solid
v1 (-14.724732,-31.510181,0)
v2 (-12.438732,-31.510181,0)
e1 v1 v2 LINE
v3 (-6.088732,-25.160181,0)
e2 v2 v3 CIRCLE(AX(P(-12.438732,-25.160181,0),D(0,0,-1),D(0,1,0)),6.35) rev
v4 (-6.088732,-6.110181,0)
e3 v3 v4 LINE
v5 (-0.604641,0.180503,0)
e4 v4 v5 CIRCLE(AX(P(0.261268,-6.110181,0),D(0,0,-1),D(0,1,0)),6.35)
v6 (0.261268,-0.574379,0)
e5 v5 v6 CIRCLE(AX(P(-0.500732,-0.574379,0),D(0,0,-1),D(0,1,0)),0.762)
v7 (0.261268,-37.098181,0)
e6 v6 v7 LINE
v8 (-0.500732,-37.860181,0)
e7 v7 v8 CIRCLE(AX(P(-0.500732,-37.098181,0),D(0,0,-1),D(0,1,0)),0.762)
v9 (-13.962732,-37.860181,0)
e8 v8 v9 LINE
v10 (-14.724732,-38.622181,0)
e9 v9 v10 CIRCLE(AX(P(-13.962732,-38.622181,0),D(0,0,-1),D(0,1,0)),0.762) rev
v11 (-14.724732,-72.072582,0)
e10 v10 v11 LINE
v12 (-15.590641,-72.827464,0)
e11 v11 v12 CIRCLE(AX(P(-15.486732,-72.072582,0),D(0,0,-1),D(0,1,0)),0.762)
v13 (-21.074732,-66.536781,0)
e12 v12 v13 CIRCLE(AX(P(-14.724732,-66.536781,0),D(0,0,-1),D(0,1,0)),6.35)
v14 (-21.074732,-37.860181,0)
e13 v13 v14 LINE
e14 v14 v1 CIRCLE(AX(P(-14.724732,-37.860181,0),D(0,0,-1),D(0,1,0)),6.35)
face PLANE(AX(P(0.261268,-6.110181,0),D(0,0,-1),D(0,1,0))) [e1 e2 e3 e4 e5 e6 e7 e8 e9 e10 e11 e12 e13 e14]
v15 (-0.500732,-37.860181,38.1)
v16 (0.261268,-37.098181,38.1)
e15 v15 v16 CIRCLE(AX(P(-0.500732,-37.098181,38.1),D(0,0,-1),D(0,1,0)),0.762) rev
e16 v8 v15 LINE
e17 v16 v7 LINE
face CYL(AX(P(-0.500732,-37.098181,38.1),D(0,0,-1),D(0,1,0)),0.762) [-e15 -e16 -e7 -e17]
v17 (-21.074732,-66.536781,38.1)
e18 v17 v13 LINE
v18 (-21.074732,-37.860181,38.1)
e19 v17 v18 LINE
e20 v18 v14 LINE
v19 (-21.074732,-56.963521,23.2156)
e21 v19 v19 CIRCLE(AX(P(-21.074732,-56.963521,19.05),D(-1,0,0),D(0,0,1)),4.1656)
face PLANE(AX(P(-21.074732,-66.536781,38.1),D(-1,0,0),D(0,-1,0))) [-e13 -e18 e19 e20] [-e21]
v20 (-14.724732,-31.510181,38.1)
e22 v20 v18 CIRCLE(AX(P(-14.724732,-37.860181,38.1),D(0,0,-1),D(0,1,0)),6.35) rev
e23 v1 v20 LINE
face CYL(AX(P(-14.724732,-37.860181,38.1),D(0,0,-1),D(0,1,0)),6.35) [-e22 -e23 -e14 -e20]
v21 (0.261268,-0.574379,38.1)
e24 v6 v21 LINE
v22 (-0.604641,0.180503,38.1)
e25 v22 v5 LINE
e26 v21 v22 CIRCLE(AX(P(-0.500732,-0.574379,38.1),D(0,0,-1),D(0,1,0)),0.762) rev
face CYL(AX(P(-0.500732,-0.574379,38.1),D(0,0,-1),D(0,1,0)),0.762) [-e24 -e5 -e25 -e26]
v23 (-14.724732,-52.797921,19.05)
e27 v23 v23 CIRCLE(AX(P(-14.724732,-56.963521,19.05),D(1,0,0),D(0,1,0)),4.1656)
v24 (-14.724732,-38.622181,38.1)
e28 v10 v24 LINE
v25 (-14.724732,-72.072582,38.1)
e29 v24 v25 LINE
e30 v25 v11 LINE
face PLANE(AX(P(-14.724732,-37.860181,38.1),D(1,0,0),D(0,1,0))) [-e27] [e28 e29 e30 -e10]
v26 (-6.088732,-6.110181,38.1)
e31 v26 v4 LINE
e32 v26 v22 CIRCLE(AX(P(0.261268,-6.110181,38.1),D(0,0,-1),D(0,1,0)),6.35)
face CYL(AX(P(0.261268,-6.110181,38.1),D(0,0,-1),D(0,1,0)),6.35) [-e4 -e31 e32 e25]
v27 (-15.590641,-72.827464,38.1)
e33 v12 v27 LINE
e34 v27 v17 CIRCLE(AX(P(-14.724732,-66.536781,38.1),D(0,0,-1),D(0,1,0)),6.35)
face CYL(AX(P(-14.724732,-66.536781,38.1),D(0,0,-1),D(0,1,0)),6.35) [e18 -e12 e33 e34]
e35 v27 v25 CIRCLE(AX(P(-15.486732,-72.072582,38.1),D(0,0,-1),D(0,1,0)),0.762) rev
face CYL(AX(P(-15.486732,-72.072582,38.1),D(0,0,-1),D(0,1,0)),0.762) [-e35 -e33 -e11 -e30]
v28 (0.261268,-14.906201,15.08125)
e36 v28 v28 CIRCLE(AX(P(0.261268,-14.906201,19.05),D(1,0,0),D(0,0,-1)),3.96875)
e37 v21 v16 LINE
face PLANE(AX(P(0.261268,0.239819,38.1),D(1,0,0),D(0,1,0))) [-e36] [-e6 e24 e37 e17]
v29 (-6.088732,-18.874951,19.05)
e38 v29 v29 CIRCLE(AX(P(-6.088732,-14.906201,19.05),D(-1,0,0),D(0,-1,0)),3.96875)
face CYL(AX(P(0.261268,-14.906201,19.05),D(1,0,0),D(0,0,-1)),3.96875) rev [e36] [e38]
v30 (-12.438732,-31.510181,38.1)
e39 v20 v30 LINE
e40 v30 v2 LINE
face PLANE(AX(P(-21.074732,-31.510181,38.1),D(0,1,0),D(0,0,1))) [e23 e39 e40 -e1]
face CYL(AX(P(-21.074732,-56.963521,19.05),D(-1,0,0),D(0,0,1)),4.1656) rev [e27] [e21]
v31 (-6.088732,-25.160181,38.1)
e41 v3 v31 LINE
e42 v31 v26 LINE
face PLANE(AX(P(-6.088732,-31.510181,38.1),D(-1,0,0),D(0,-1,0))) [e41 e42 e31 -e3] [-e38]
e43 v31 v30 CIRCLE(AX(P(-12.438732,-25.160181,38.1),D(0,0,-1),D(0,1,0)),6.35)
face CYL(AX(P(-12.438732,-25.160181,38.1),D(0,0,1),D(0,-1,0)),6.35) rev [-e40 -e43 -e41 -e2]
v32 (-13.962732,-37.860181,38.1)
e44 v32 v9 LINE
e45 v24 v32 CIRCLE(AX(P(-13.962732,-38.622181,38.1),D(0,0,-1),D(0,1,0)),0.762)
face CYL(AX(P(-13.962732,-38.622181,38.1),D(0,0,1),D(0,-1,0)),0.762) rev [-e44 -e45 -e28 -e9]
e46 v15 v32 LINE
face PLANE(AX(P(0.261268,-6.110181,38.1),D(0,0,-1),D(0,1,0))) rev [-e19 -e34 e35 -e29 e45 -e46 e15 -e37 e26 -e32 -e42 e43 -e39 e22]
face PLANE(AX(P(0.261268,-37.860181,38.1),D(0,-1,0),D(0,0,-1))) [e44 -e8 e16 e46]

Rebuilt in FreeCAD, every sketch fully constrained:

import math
import FreeCAD as App
import Part
import Sketcher
Q = App.Units.Quantity


def edges_at(feature, points):
    """Names of the edges that pass closest to the given points."""
    edges = feature.Shape.Edges
    near = lambda p: min(range(len(edges)), key=lambda i: edges[i].distToShape(Part.Vertex(*p))[0])
    return sorted({f"Edge{near(p) + 1}" for p in points})

doc = App.newDocument("Part")
body = doc.addObject("PartDesign::Body", "Body")

# Sketch on XY plane
sketch1 = body.newObject("Sketcher::SketchObject", "Sketch")
sketch1.AttachmentSupport = (doc.getObject("XY_Plane"), [""])
sketch1.MapMode = "FlatFace"
sketch1.addGeometry(Part.LineSegment(App.Vector(-21, -32, 0), App.Vector(-6, -32, 0)), False)
sketch1.addGeometry(Part.LineSegment(App.Vector(-6, -32, 0), App.Vector(-6, -6, 0)), False)
sketch1.addGeometry(Part.ArcOfCircle(Part.Circle(App.Vector(0, -6, 0), App.Vector(0, 0, 1), 6), math.radians(90), math.radians(180)), False)
sketch1.addGeometry(Part.LineSegment(App.Vector(0, 0, 0), App.Vector(0, -38, 0)), False)
sketch1.addGeometry(Part.LineSegment(App.Vector(0, -38, 0), App.Vector(-15, -38, 0)), False)
sketch1.addGeometry(Part.LineSegment(App.Vector(-15, -38, 0), App.Vector(-15, -73, 0)), False)
sketch1.addGeometry(Part.ArcOfCircle(Part.Circle(App.Vector(-15, -67, 0), App.Vector(0, 0, 1), 6), math.radians(180), math.radians(270)), False)
sketch1.addGeometry(Part.LineSegment(App.Vector(-21, -67, 0), App.Vector(-21, -32, 0)), False)
sketch1.addConstraint(Sketcher.Constraint("Coincident", 0, 2, 1, 1))
sketch1.addConstraint(Sketcher.Constraint("Tangent", 1, 2, 2, 2))
sketch1.addConstraint(Sketcher.Constraint("Coincident", 2, 1, 3, 1))
sketch1.addConstraint(Sketcher.Constraint("Coincident", 3, 2, 4, 1))
sketch1.addConstraint(Sketcher.Constraint("Coincident", 4, 2, 5, 1))
sketch1.addConstraint(Sketcher.Constraint("Coincident", 5, 2, 6, 2))
sketch1.addConstraint(Sketcher.Constraint("Tangent", 6, 1, 7, 1))
sketch1.addConstraint(Sketcher.Constraint("Coincident", 7, 2, 0, 1))
sketch1.addConstraint(Sketcher.Constraint("Horizontal", 0))
sketch1.addConstraint(Sketcher.Constraint("Vertical", 1))
sketch1.addConstraint(Sketcher.Constraint("Vertical", 3))
sketch1.addConstraint(Sketcher.Constraint("Horizontal", 4))
sketch1.addConstraint(Sketcher.Constraint("Vertical", 5))
sketch1.addConstraint(Sketcher.Constraint("Vertical", 7))
sketch1.addConstraint(Sketcher.Constraint("Equal", 2, 6))
sketch1.addConstraint(Sketcher.Constraint("Vertical", 6, 3, 4, 2))
sketch1.addConstraint(Sketcher.Constraint("Equal", 0, 4))
sketch1.addConstraint(Sketcher.Constraint("Equal", 5, 7))
sketch1.addConstraint(Sketcher.Constraint("DistanceY", 1, 1, 1, 2, Q("1 in")))
sketch1.addConstraint(Sketcher.Constraint("Radius", 2, Q("0.25 in")))
sketch1.addConstraint(Sketcher.Constraint("DistanceX", 0, 1, 0, 2, Q("0.59 in")))
sketch1.addConstraint(Sketcher.Constraint("DistanceY", 5, 2, 5, 1, Q("1.379 in")))
sketch1.addConstraint(Sketcher.Constraint("DistanceY", 2, 3, -1, 1, Q("6.110181 mm")))
sketch1.addConstraint(Sketcher.Constraint("DistanceX", -1, 1, 2, 3, Q("0.261268 mm")))
pad1 = body.newObject("PartDesign::Pad", "Pad")
pad1.Profile = sketch1
pad1.Length = Q("1.5 in")

# Sketch on YZ plane
sketch2 = body.newObject("Sketcher::SketchObject", "Sketch001")
sketch2.AttachmentSupport = (doc.getObject("YZ_Plane"), [""])
sketch2.MapMode = "FlatFace"
sketch2.AttachmentOffset = App.Placement(App.Vector(0, 0, 0.261268), App.Rotation())
sketch2.addGeometry(Part.Circle(App.Vector(-14.9, 19.1, 0), App.Vector(0, 0, 1), 4), False)
sketch2.addConstraint(Sketcher.Constraint("Diameter", 0, Q("0.3125 in")))
sketch2.addConstraint(Sketcher.Constraint("DistanceY", -1, 1, 0, 3, Q("0.75 in")))
sketch2.addConstraint(Sketcher.Constraint("DistanceX", 0, 3, -1, 1, Q("14.906201 mm")))
doc.recompute()
hole = body.newObject("PartDesign::Hole", "Hole")
hole.Profile = sketch2
hole.ThreadType = "None"
hole.Diameter = Q("0.3125 in")
hole.DepthType = "Dimension"
hole.Depth = Q("0.84 in")
hole.DrillPoint = "Flat"

# Sketch on YZ plane
sketch3 = body.newObject("Sketcher::SketchObject", "Sketch002")
sketch3.AttachmentSupport = (doc.getObject("YZ_Plane"), [""])
sketch3.MapMode = "FlatFace"
sketch3.AttachmentOffset = App.Placement(App.Vector(0, 0, -21.074732), App.Rotation())
sketch3.addGeometry(Part.Circle(App.Vector(-57, 19.1, 0), App.Vector(0, 0, 1), 4.2), False)
sketch3.addConstraint(Sketcher.Constraint("Diameter", 0, Q("0.328 in")))
sketch3.addConstraint(Sketcher.Constraint("DistanceY", -1, 1, 0, 3, Q("0.75 in")))
sketch3.addConstraint(Sketcher.Constraint("DistanceX", 0, 3, -1, 1, Q("56.963521 mm")))
doc.recompute()
hole2 = body.newObject("PartDesign::Hole", "Hole001")
hole2.Profile = sketch3
hole2.ThreadType = "None"
hole2.Diameter = Q("0.328 in")
hole2.DepthType = "Dimension"
hole2.Depth = Q("0.84 in")
hole2.DrillPoint = "Flat"
hole2.Reversed = True
doc.recompute()

fillet = body.newObject("PartDesign::Fillet", "Fillet")
fillet.Base = (hole2, edges_at(hole2, [
    (-14.725, -72.887, 19.05),
    (-14.725, -37.86, 19.05),
    (0.261, -37.86, 19.05),
    (0.261, 0.24, 19.05),
]))
fillet.Radius = Q("0.03 in")
doc.recompute()

fillet2 = body.newObject("PartDesign::Fillet", "Fillet001")
fillet2.Base = (fillet, edges_at(fillet, [(-6.089, -31.51, 19.05), (-21.075, -31.51, 19.05)]))
fillet2.Radius = Q("0.25 in")

doc.recompute()
